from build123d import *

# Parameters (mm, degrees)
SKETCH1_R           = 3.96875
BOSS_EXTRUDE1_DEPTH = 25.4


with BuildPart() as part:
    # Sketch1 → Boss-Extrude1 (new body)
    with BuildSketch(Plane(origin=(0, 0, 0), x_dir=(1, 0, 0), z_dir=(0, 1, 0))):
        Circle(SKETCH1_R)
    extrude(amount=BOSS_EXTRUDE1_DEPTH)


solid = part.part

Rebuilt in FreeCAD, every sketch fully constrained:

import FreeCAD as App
import Part
import Sketcher
Q = App.Units.Quantity

doc = App.newDocument("Part")
params = doc.addObject("Spreadsheet::Sheet", "Params")
for row, (alias, value) in enumerate([
    ("sketch1_diameter", "0.3125 in"),
    ("pad1_length", "1 in"),
], start=1):
    params.set(f"A{row}", alias)
    params.set(f"B{row}", "=" + value)
    params.setAlias(f"B{row}", alias)

body = doc.addObject("PartDesign::Body", "Body")

# Sketch on XZ plane
sketch1 = body.newObject("Sketcher::SketchObject", "Sketch")
sketch1.AttachmentSupport = (doc.getObject("XZ_Plane"), [""])
sketch1.MapMode = "FlatFace"
sketch1.addGeometry(Part.Circle(App.Vector(0, 0, 0), App.Vector(0, 0, 1), 3.96875), False)
sketch1.addConstraint([
    Sketcher.Constraint("Coincident", 0, 3, -1, 1),
    Sketcher.Constraint("Diameter", 0, Q("0.3125 in")),
])
sketch1.setExpression("Constraints[1]", "Params.sketch1_diameter")
pad1 = body.newObject("PartDesign::Pad", "Pad")
pad1.Profile = sketch1
pad1.setExpression("Length", "Params.pad1_length")
pad1.Reversed = True

doc.recompute()
